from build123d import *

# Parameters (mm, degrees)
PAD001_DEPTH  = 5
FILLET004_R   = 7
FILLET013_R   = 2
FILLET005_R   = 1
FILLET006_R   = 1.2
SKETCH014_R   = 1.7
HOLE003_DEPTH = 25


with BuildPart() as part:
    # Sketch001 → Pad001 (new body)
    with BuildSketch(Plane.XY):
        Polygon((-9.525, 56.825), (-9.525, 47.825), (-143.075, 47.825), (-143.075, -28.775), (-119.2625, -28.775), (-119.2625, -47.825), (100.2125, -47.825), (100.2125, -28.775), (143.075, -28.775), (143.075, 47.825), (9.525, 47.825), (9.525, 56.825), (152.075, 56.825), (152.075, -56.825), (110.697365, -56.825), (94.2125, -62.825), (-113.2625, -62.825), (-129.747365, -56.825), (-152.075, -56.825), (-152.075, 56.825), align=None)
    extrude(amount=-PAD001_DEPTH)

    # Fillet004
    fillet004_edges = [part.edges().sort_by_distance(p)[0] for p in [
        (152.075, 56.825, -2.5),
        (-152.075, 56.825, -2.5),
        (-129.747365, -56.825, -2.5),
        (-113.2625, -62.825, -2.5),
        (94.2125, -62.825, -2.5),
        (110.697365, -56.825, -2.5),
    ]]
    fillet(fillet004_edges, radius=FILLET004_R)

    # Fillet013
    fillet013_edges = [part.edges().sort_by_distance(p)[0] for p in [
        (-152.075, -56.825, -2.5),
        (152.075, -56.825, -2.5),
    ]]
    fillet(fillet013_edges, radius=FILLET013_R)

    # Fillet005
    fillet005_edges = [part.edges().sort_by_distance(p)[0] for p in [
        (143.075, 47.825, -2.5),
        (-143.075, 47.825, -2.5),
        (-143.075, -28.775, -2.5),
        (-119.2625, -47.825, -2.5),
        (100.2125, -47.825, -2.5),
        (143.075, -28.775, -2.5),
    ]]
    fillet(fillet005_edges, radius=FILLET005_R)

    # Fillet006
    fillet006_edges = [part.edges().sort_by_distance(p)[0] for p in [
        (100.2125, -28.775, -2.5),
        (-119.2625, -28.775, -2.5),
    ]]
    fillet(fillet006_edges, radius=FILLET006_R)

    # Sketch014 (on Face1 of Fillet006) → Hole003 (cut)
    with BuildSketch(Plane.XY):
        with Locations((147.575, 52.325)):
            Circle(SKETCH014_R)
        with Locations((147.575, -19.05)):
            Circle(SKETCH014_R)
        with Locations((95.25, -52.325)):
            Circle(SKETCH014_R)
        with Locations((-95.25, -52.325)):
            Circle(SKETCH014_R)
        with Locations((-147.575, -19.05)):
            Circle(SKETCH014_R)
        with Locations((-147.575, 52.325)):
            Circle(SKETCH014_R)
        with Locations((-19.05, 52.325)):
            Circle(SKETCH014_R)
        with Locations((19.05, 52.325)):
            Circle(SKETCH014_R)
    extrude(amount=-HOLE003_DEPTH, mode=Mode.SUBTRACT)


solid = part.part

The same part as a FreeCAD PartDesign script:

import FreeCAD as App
import Part
import Sketcher
from FreeCAD import Vector
Q = App.Units.Quantity


def edges_at(feature, points):
    """Names of the edges that pass closest to the given points."""
    edges = feature.Shape.Edges
    near = lambda p: min(range(len(edges)), key=lambda i: edges[i].distToShape(Part.Vertex(*p))[0])
    return sorted({f"Edge{near(p) + 1}" for p in points})

doc = App.newDocument("Part")
body = doc.addObject("PartDesign::Body", "Body")

sketch1 = body.newObject("Sketcher::SketchObject", "Sketch")
sketch1.AttachmentSupport = (doc.getObject("XY_Plane"), [""])
sketch1.MapMode = "FlatFace"
sketch1.addGeometry([
    Part.LineSegment(Vector(-10, 48, 0), Vector(-10, 57, 0)),
    Part.LineSegment(Vector(-10, 57, 0), Vector(-152, 57, 0)),
    Part.LineSegment(Vector(-152, 57, 0), Vector(-152, -57, 0)),
    Part.LineSegment(Vector(-152, -57, 0), Vector(-130, -57, 0)),
    Part.LineSegment(Vector(-130, -57, 0), Vector(-113, -63, 0)),
    Part.LineSegment(Vector(-113, -63, 0), Vector(94, -63, 0)),
    Part.LineSegment(Vector(94, -63, 0), Vector(111, -57, 0)),
    Part.LineSegment(Vector(111, -57, 0), Vector(152, -57, 0)),
    Part.LineSegment(Vector(152, -57, 0), Vector(152, 57, 0)),
    Part.LineSegment(Vector(152, 57, 0), Vector(10, 57, 0)),
    Part.LineSegment(Vector(10, 57, 0), Vector(10, 48, 0)),
    Part.LineSegment(Vector(10, 48, 0), Vector(143, 48, 0)),
    Part.LineSegment(Vector(143, 48, 0), Vector(143, -29, 0)),
    Part.LineSegment(Vector(143, -29, 0), Vector(100, -29, 0)),
    Part.LineSegment(Vector(100, -29, 0), Vector(100, -48, 0)),
    Part.LineSegment(Vector(100, -48, 0), Vector(-119, -48, 0)),
    Part.LineSegment(Vector(-119, -48, 0), Vector(-119, -29, 0)),
    Part.LineSegment(Vector(-119, -29, 0), Vector(-143, -29, 0)),
    Part.LineSegment(Vector(-143, -29, 0), Vector(-143, 48, 0)),
    Part.LineSegment(Vector(-143, 48, 0), Vector(-10, 48, 0)),
], False)
sketch1.addConstraint([
    Sketcher.Constraint("Coincident", 0, 2, 1, 1),
    Sketcher.Constraint("Coincident", 1, 2, 2, 1),
    Sketcher.Constraint("Coincident", 2, 2, 3, 1),
    Sketcher.Constraint("Coincident", 3, 2, 4, 1),
    Sketcher.Constraint("Coincident", 4, 2, 5, 1),
    Sketcher.Constraint("Coincident", 5, 2, 6, 1),
    Sketcher.Constraint("Coincident", 6, 2, 7, 1),
    Sketcher.Constraint("Coincident", 7, 2, 8, 1),
    Sketcher.Constraint("Coincident", 8, 2, 9, 1),
    Sketcher.Constraint("Coincident", 9, 2, 10, 1),
    Sketcher.Constraint("Coincident", 10, 2, 11, 1),
    Sketcher.Constraint("Coincident", 11, 2, 12, 1),
    Sketcher.Constraint("Coincident", 12, 2, 13, 1),
    Sketcher.Constraint("Coincident", 13, 2, 14, 1),
    Sketcher.Constraint("Coincident", 14, 2, 15, 1),
    Sketcher.Constraint("Coincident", 15, 2, 16, 1),
    Sketcher.Constraint("Coincident", 16, 2, 17, 1),
    Sketcher.Constraint("Coincident", 17, 2, 18, 1),
    Sketcher.Constraint("Coincident", 18, 2, 19, 1),
    Sketcher.Constraint("Coincident", 19, 2, 0, 1),
    Sketcher.Constraint("Vertical", 0),
    Sketcher.Constraint("Horizontal", 1),
    Sketcher.Constraint("Vertical", 2),
    Sketcher.Constraint("Horizontal", 3),
    Sketcher.Constraint("Horizontal", 5),
    Sketcher.Constraint("Horizontal", 7),
    Sketcher.Constraint("Vertical", 8),
    Sketcher.Constraint("Horizontal", 9),
    Sketcher.Constraint("Vertical", 10),
    Sketcher.Constraint("Horizontal", 11),
    Sketcher.Constraint("Vertical", 12),
    Sketcher.Constraint("Horizontal", 13),
    Sketcher.Constraint("Vertical", 14),
    Sketcher.Constraint("Horizontal", 15),
    Sketcher.Constraint("Vertical", 16),
    Sketcher.Constraint("Horizontal", 17),
    Sketcher.Constraint("Vertical", 18),
    Sketcher.Constraint("Horizontal", 19),
    Sketcher.Constraint("Symmetric", 1, 2, 7, 2, -1, 1),
    Sketcher.Constraint("Symmetric", 0, 2, 9, 2, -2),
    Sketcher.Constraint("Symmetric", 12, 2, 17, 2, -2),
    Sketcher.Constraint("Horizontal", 3, 2, 6, 2),
    Sketcher.Constraint("Horizontal", 11, 2, 18, 2),
    Sketcher.Constraint("Equal", 4, 6),
    Sketcher.Constraint("DistanceY", 0, 1, 0, 2, 9.0),
    Sketcher.Constraint("Angle", 4, Q("-19.999999 deg")),
    Sketcher.Constraint("DistanceY", 12, 2, 12, 1, 76.6),
    Sketcher.Constraint("DistanceY", 4, 2, 3, 2, 6.0),
    Sketcher.Constraint("DistanceX", 11, 2, 8, 2, 9.0),
    Sketcher.Constraint("DistanceX", 5, 2, 13, 2, 6.0),
    Sketcher.Constraint("DistanceY", 6, 2, 14, 2, 9.0),
    Sketcher.Constraint("DistanceX", 15, 2, 4, 2, 6.0),
    Sketcher.Constraint("DistanceX", 1, 2, 1, 1, 142.55),
    Sketcher.Constraint("DistanceY", 2, 2, 2, 1, 113.65),
    Sketcher.Constraint("DistanceX", 0, 2, 7, 2, 161.6),
    Sketcher.Constraint("DistanceX", 5, 1, 5, 2, 207.475),
    Sketcher.Constraint("DistanceX", 13, 2, 13, 1, 42.8625),
])
pad1 = body.newObject("PartDesign::Pad", "Pad")
pad1.Profile = sketch1
pad1.Length = 5
pad1.Reversed = True
doc.recompute()

fillet = body.newObject("PartDesign::Fillet", "Fillet")
fillet.Base = (pad1, edges_at(pad1, [
    (152.075, 56.825, -2.5),
    (-152.075, 56.825, -2.5),
    (-129.747, -56.825, -2.5),
    (-113.263, -62.825, -2.5),
    (94.213, -62.825, -2.5),
    (110.697, -56.825, -2.5),
]))
fillet.Radius = 7
doc.recompute()

fillet2 = body.newObject("PartDesign::Fillet", "Fillet001")
fillet2.Base = (fillet, edges_at(fillet, [(-152.075, -56.825, -2.5), (152.075, -56.825, -2.5)]))
fillet2.Radius = 2
doc.recompute()

fillet3 = body.newObject("PartDesign::Fillet", "Fillet002")
fillet3.Base = (fillet2, edges_at(fillet2, [
    (143.075, 47.825, -2.5),
    (-143.075, 47.825, -2.5),
    (-143.075, -28.775, -2.5),
    (-119.263, -47.825, -2.5),
    (100.213, -47.825, -2.5),
    (143.075, -28.775, -2.5),
]))
fillet3.Radius = 1
doc.recompute()

fillet4 = body.newObject("PartDesign::Fillet", "Fillet003")
fillet4.Base = (fillet3, edges_at(fillet3, [(100.213, -28.775, -2.5), (-119.263, -28.775, -2.5)]))
fillet4.Radius = 1.2

sketch2 = body.newObject("Sketcher::SketchObject", "Sketch001")
sketch2.AttachmentSupport = (doc.getObject("XY_Plane"), [""])
sketch2.MapMode = "FlatFace"
sketch2.addGeometry([
    Part.Circle(Vector(147.6, 52.3, 0), Vector(0, 0, 1), 1.7),
    Part.Circle(Vector(147.6, -19.1, 0), Vector(0, 0, 1), 1.7),
    Part.Circle(Vector(95.2, -52.3, 0), Vector(0, 0, 1), 1.7),
    Part.Circle(Vector(-95.2, -52.3, 0), Vector(0, 0, 1), 1.7),
    Part.Circle(Vector(-147.6, -19.1, 0), Vector(0, 0, 1), 1.7),
    Part.Circle(Vector(-147.6, 52.3, 0), Vector(0, 0, 1), 1.7),
    Part.Circle(Vector(-19.1, 52.3, 0), Vector(0, 0, 1), 1.7),
    Part.Circle(Vector(19.1, 52.3, 0), Vector(0, 0, 1), 1.7),
], False)
sketch2.addConstraint([
    Sketcher.Constraint("Equal", 0, 1),
    Sketcher.Constraint("Equal", 1, 2),
    Sketcher.Constraint("Equal", 2, 3),
    Sketcher.Constraint("Equal", 3, 4),
    Sketcher.Constraint("Equal", 4, 5),
    Sketcher.Constraint("Equal", 5, 6),
    Sketcher.Constraint("Equal", 6, 7),
    Sketcher.Constraint("Symmetric", 2, 3, 3, 3, -2),
    Sketcher.Constraint("Symmetric", 1, 3, 4, 3, -2),
    Sketcher.Constraint("Symmetric", 0, 3, 5, 3, -2),
    Sketcher.Constraint("Symmetric", 6, 3, 7, 3, -2),
    Sketcher.Constraint("Horizontal", 5, 3, 6, 3),
    Sketcher.Constraint("Vertical", 0, 3, 1, 3),
    Sketcher.Constraint("Diameter", 0, 3.4),
    Sketcher.Constraint("DistanceX", 3, 3, 2, 3, 190.5),
    Sketcher.Constraint("DistanceX", 3, 3, 6, 3, 76.2),
    Sketcher.Constraint("DistanceY", 1, 3, -1, 1, 19.05),
    Sketcher.Constraint("DistanceY", 2, 3, 0, 3, 104.65),
    Sketcher.Constraint("DistanceX", 4, 3, 1, 3, 295.15),
    Sketcher.Constraint("DistanceY", -1, 1, 0, 3, 52.325),
])
pocket1 = body.newObject("PartDesign::Pocket", "Pocket")
pocket1.Profile = sketch2
pocket1.Length = 25

doc.recompute()
